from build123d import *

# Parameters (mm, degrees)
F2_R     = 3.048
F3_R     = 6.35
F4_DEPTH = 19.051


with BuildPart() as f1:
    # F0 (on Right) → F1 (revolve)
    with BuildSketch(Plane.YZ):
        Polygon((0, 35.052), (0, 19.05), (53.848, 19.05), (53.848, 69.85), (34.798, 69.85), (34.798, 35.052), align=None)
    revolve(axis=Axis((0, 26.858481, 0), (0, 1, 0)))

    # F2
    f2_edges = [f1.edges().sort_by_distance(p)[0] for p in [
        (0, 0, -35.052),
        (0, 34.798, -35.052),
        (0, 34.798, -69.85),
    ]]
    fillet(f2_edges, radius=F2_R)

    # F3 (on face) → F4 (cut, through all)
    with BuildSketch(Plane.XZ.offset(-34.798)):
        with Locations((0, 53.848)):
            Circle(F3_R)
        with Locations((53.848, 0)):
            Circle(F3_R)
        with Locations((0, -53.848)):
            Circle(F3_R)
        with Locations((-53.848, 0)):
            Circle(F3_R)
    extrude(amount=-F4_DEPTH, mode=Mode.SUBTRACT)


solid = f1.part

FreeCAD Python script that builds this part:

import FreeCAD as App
import Part
import Sketcher

V = App.Vector
Q = App.Units.Quantity


def edges_at(feature, points):
    """Names of the edges that pass closest to the given points."""
    edges = feature.Shape.Edges
    near = lambda p: min(range(len(edges)), key=lambda i: edges[i].distToShape(Part.Vertex(*p))[0])
    return sorted({f"Edge{near(p) + 1}" for p in points})

doc = App.newDocument("Part")
params = doc.addObject("Spreadsheet::Sheet", "Params")
for row, (alias, value) in enumerate([
    ("sketch1_height", "2 in"),
    ("sketch1_width", "2.12 in"),
    ("sketch1_width2", "0.75 in"),
    ("revolution_angle", "360 deg"),
    ("fillet_radius", "0.12 in"),
    ("sketch2_diameter", "0.5 in"),
], start=1):
    params.set(f"A{row}", alias)
    params.set(f"B{row}", "=" + value)
    params.setAlias(f"B{row}", alias)

body = doc.addObject("PartDesign::Body", "Body")

# Sketch on YZ plane
sketch1 = body.newObject("Sketcher::SketchObject", "Sketch")
sketch1.AttachmentSupport = (doc.getObject("YZ_Plane"), [""])
sketch1.MapMode = "FlatFace"
sketch1.addGeometry([
    Part.LineSegment(V(0, 35, 0), V(0, 19, 0)),  # 0
    Part.LineSegment(V(0, 19, 0), V(54, 19, 0)),  # 1
    Part.LineSegment(V(54, 19, 0), V(54, 70, 0)),  # 2
    Part.LineSegment(V(54, 70, 0), V(35, 70, 0)),  # 3
    Part.LineSegment(V(35, 70, 0), V(35, 35, 0)),  # 4
    Part.LineSegment(V(35, 35, 0), V(0, 35, 0)),  # 5
], False)
sketch1.addConstraint([
    Sketcher.Constraint("Coincident", 0, 2, 1, 1),
    Sketcher.Constraint("Coincident", 1, 2, 2, 1),
    Sketcher.Constraint("Coincident", 2, 2, 3, 1),
    Sketcher.Constraint("Coincident", 3, 2, 4, 1),
    Sketcher.Constraint("Coincident", 4, 2, 5, 1),
    Sketcher.Constraint("Coincident", 5, 2, 0, 1),
    Sketcher.Constraint("Vertical", 0),
    Sketcher.Constraint("Horizontal", 1),
    Sketcher.Constraint("Vertical", 2),
    Sketcher.Constraint("Horizontal", 3),
    Sketcher.Constraint("Vertical", 4),
    Sketcher.Constraint("Horizontal", 5),
    Sketcher.Constraint("PointOnObject", 0, 2, -2),
    Sketcher.Constraint("Equal", 5, 4),
    Sketcher.Constraint("DistanceY", 2, 1, 2, 2, Q("2 in")),
    Sketcher.Constraint("DistanceX", 1, 1, 1, 2, Q("2.12 in")),
    Sketcher.Constraint("DistanceX", 3, 2, 3, 1, Q("0.75 in")),
    Sketcher.Constraint("DistanceY", -1, 1, 0, 2, Q("0.75 in")),
])
sketch1.setExpression("Constraints[14]", "Params.sketch1_height")
sketch1.setExpression("Constraints[15]", "Params.sketch1_width")
sketch1.setExpression("Constraints[16]", "Params.sketch1_width2")
revolution = body.newObject("PartDesign::Revolution", "Revolution")
revolution.Profile = sketch1
revolution.ReferenceAxis = (sketch1, ["H_Axis"])
revolution.setExpression("Angle", "Params.revolution_angle")
doc.recompute()

fillet = body.newObject("PartDesign::Fillet", "Fillet")
fillet.Base = (revolution, edges_at(revolution, [(0, 0, -35.052), (0, 34.798, -35.052), (0, 34.798, -69.85)]))
fillet.setExpression("Radius", "Params.fillet_radius")

# Sketch on XZ plane
sketch2 = body.newObject("Sketcher::SketchObject", "Sketch001")
sketch2.AttachmentSupport = (doc.getObject("XZ_Plane"), [""])
sketch2.MapMode = "FlatFace"
sketch2.AttachmentOffset = App.Placement(V(0, 0, -1.37 * 25.4), App.Rotation())
sketch2.addGeometry([
    Part.Circle(V(0, 54, 0), V(0, 0, 1), 6),
    Part.Circle(V(54, 0, 0), V(0, 0, 1), 6),
    Part.Circle(V(0, -54, 0), V(0, 0, 1), 6),
    Part.Circle(V(-54, 0, 0), V(0, 0, 1), 6),
], False)
sketch2.addConstraint([
    Sketcher.Constraint("Equal", 0, 1),
    Sketcher.Constraint("Equal", 1, 2),
    Sketcher.Constraint("Equal", 2, 3),
    Sketcher.Constraint("Symmetric", 0, 3, 2, 3, -1, 1),
    Sketcher.Constraint("Symmetric", 1, 3, 3, 3, -1, 1),
    Sketcher.Constraint("PointOnObject", 0, 3, -2),
    Sketcher.Constraint("PointOnObject", 1, 3, -1),
    Sketcher.Constraint("Diameter", 0, Q("0.5 in")),
    Sketcher.Constraint("DistanceY", -1, 1, 0, 3, Q("2.12 in")),
    Sketcher.Constraint("DistanceX", -1, 1, 1, 3, Q("2.12 in")),
])
sketch2.setExpression("Constraints[7]", "Params.sketch2_diameter")
pocket1 = body.newObject("PartDesign::Pocket", "Pocket")
pocket1.Profile = sketch2
pocket1.Type = "ThroughAll"

doc.recompute()
